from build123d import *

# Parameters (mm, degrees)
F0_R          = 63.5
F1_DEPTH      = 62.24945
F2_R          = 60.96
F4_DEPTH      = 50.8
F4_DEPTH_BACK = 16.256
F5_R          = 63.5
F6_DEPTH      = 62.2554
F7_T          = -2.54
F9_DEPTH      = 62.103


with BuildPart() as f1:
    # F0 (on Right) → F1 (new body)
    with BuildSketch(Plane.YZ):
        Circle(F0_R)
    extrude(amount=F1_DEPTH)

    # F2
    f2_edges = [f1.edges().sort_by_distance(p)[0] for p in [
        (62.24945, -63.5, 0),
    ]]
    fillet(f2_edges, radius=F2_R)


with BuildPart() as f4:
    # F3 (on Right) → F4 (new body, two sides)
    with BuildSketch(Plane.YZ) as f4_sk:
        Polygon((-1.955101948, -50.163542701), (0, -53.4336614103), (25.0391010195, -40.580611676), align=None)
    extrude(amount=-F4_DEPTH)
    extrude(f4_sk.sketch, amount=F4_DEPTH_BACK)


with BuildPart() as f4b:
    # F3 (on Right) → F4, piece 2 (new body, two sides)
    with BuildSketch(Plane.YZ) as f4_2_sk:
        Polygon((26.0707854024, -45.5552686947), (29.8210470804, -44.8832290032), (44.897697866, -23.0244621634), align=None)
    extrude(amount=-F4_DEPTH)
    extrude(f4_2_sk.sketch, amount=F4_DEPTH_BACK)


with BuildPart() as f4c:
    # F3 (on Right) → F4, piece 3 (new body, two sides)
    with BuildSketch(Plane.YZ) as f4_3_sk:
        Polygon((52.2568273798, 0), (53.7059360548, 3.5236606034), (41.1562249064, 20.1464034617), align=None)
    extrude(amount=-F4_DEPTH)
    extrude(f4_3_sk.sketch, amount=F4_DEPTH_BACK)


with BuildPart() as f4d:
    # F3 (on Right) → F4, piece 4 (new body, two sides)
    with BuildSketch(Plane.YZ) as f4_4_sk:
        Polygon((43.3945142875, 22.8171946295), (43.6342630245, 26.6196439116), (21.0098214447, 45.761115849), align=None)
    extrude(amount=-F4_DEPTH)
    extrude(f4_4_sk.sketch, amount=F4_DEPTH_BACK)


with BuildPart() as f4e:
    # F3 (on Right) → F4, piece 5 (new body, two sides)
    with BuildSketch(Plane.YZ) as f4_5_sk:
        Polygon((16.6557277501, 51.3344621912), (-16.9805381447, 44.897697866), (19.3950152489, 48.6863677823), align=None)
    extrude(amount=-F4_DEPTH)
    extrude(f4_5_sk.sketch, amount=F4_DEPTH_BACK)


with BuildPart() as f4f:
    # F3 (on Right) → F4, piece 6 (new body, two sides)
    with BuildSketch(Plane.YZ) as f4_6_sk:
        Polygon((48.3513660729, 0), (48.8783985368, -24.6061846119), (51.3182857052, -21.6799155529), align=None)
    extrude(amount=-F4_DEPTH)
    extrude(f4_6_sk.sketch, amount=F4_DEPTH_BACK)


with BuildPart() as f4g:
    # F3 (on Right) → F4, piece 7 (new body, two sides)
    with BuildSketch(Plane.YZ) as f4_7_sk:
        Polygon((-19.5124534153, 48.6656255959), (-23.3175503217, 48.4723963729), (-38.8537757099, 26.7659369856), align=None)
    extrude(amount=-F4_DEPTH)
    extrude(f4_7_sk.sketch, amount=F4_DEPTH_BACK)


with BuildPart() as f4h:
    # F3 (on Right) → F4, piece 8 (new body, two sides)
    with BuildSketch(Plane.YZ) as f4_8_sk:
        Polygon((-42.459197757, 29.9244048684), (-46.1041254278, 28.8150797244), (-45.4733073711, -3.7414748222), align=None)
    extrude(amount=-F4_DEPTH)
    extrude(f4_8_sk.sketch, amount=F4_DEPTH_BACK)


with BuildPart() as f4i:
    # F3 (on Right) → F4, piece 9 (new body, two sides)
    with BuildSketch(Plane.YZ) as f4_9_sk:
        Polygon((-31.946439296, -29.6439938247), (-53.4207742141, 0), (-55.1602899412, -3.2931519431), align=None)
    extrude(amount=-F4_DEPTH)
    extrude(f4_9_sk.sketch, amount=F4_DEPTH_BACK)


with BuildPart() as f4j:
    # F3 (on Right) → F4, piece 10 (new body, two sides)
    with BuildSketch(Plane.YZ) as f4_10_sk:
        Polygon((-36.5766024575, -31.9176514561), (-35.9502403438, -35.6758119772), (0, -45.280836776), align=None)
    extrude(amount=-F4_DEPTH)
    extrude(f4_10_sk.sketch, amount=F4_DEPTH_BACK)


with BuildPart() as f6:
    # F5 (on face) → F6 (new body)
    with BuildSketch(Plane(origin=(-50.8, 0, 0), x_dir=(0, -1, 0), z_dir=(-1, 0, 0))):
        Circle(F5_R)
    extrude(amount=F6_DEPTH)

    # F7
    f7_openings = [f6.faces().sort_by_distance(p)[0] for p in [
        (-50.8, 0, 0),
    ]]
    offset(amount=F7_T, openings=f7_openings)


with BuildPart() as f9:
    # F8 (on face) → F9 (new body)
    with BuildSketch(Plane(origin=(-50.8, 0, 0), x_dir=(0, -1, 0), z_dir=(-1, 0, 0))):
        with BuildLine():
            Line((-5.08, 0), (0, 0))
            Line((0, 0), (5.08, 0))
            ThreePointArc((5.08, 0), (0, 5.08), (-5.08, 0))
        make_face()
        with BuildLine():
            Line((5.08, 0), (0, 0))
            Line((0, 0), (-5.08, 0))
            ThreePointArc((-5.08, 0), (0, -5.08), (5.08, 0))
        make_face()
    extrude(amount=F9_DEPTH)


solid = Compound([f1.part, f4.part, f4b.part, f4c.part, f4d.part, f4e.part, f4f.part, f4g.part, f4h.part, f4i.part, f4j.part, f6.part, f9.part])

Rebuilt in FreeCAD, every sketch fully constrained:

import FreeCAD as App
import Part
import Sketcher
Q = App.Units.Quantity


def edges_at(feature, points):
    """Names of the edges that pass closest to the given points."""
    edges = feature.Shape.Edges
    near = lambda p: min(range(len(edges)), key=lambda i: edges[i].distToShape(Part.Vertex(*p))[0])
    return sorted({f"Edge{near(p) + 1}" for p in points})


def faces_at(feature, points):
    """Names of the faces that lie closest to the given points."""
    faces = feature.Shape.Faces
    near = lambda p: min(range(len(faces)), key=lambda i: faces[i].distToShape(Part.Vertex(*p))[0])
    return sorted({f"Face{near(p) + 1}" for p in points})


def add_polygon(sketch, points):
    """Adds a closed chain of lines whose ends are joined by coincident constraints."""
    first, n = sketch.GeometryCount, len(points)
    for a, b in zip(points, points[1:] + points[:1]):
        sketch.addGeometry(Part.LineSegment(App.Vector(*a, 0), App.Vector(*b, 0)), False)
    for i in range(n):
        sketch.addConstraint(Sketcher.Constraint("Coincident", first + i, 2, first + (i + 1) % n, 1))

doc = App.newDocument("Part")
params = doc.addObject("Spreadsheet::Sheet", "Params")
for row, (alias, value) in enumerate([
    ("sketch1_diameter", "5 in"),
    ("pad1_length", "62.24945 mm"),
    ("fillet_radius", "2.4 in"),
    ("sketch2_length", "0.15 in"),
    ("pad2_length", "2 in"),
    ("pad2_length2", "0.64 in"),
    ("sketch3_length", "0.15 in"),
    ("pad3_length", "2 in"),
    ("pad3_length2", "0.64 in"),
    ("sketch4_length", "0.15 in"),
    ("pad4_length", "2 in"),
    ("pad4_length2", "0.64 in"),
    ("sketch5_length", "0.15 in"),
    ("pad5_length", "2 in"),
    ("pad5_length2", "0.64 in"),
    ("sketch6_length", "0.15 in"),
    ("pad6_length", "2 in"),
    ("pad6_length2", "0.64 in"),
    ("sketch7_length", "0.15 in"),
    ("pad7_length", "2 in"),
    ("pad7_length2", "0.64 in"),
    ("sketch8_length", "0.15 in"),
    ("pad8_length", "2 in"),
    ("pad8_length2", "0.64 in"),
    ("sketch9_length", "0.15 in"),
    ("pad9_length", "2 in"),
    ("pad9_length2", "0.64 in"),
    ("pad10_length", "2 in"),
    ("pad10_length2", "0.64 in"),
    ("sketch11_length", "0.15 in"),
    ("pad11_length", "2 in"),
    ("pad11_length2", "0.64 in"),
    ("sketch12_diameter", "5 in"),
    ("pad12_length", "2.451 in"),
    ("thickness_wall", "0.1 in"),
    ("sketch13_diameter", "0.4 in"),
    ("pad13_length", "2.445 in"),
], start=1):
    params.set(f"A{row}", alias)
    params.set(f"B{row}", "=" + value)
    params.setAlias(f"B{row}", alias)

body = doc.addObject("PartDesign::Body", "Body")

# Sketch on YZ plane
sketch1 = body.newObject("Sketcher::SketchObject", "Sketch")
sketch1.AttachmentSupport = (doc.getObject("YZ_Plane"), [""])
sketch1.MapMode = "FlatFace"
sketch1.addGeometry(Part.Circle(App.Vector(0, 0, 0), App.Vector(0, 0, 1), 63.5), False)
sketch1.addConstraint([
    Sketcher.Constraint("Coincident", 0, 3, -1, 1),
    Sketcher.Constraint("Diameter", 0, Q("5 in")),
])
sketch1.setExpression("Constraints[1]", "Params.sketch1_diameter")
pad1 = body.newObject("PartDesign::Pad", "Pad")
pad1.Profile = sketch1
pad1.setExpression("Length", "Params.pad1_length")
doc.recompute()

fillet = body.newObject("PartDesign::Fillet", "Fillet")
fillet.Base = (pad1, edges_at(pad1, [(62.249, -63.5, 0)]))
fillet.setExpression("Radius", "Params.fillet_radius")
body2 = doc.addObject("PartDesign::Body", "Body001")

# Sketch on YZ plane
sketch2 = body2.newObject("Sketcher::SketchObject", "Sketch001")
sketch2.AttachmentSupport = (doc.getObject("YZ_Plane001"), [""])
sketch2.MapMode = "FlatFace"
add_polygon(sketch2, [(-1.955102, -50.163543), (0, -53.433661), (25.039101, -40.580612)])  # lines 0-2
sketch2.addConstraint([
    Sketcher.Constraint("PointOnObject", 0, 2, -2),
    Sketcher.Constraint("Distance", 0, Q("0.15 in")),
    Sketcher.Constraint("DistanceX", -1, 1, 1, 2, Q("25.039101 mm")),
    Sketcher.Constraint("DistanceX", 2, 2, -1, 1, Q("1.955102 mm")),
    Sketcher.Constraint("DistanceY", 0, 2, -1, 1, Q("53.433661 mm")),
    Sketcher.Constraint("DistanceY", 1, 2, -1, 1, Q("40.580612 mm")),
])
sketch2.setExpression("Constraints[4]", "Params.sketch2_length")
pad2 = body2.newObject("PartDesign::Pad", "Pad001")
pad2.Profile = sketch2
pad2.Type = "TwoLengths"
pad2.setExpression("Length", "Params.pad2_length")
pad2.setExpression("Length2", "Params.pad2_length2")
pad2.Reversed = True
body3 = doc.addObject("PartDesign::Body", "Body002")

# Sketch on YZ plane
sketch3 = body3.newObject("Sketcher::SketchObject", "Sketch002")
sketch3.AttachmentSupport = (doc.getObject("YZ_Plane002"), [""])
sketch3.MapMode = "FlatFace"
add_polygon(sketch3, [(26.070785, -45.555269), (29.821047, -44.883229), (44.897698, -23.024462)])  # lines 0-2
sketch3.addConstraint([
    Sketcher.Constraint("Distance", 0, Q("0.15 in")),
    Sketcher.Constraint("DistanceY", 0, 2, -1, 1, Q("44.883229 mm")),
    Sketcher.Constraint("DistanceY", 2, 2, -1, 1, Q("45.555269 mm")),
    Sketcher.Constraint("DistanceX", 0, 2, 1, 2, Q("15.076651 mm")),
    Sketcher.Constraint("Distance", 1, Q("26.553928 mm")),
    Sketcher.Constraint("DistanceX", -1, 1, 0, 2, Q("29.821047 mm")),
])
sketch3.setExpression("Constraints[3]", "Params.sketch3_length")
pad3 = body3.newObject("PartDesign::Pad", "Pad002")
pad3.Profile = sketch3
pad3.Type = "TwoLengths"
pad3.setExpression("Length", "Params.pad3_length")
pad3.setExpression("Length2", "Params.pad3_length2")
pad3.Reversed = True
body4 = doc.addObject("PartDesign::Body", "Body003")

# Sketch on YZ plane
sketch4 = body4.newObject("Sketcher::SketchObject", "Sketch003")
sketch4.AttachmentSupport = (doc.getObject("YZ_Plane003"), [""])
sketch4.MapMode = "FlatFace"
add_polygon(sketch4, [(52.256827, 0), (53.705936, 3.523661), (41.156225, 20.146403)])  # lines 0-2
sketch4.addConstraint([
    Sketcher.Constraint("PointOnObject", 2, 2, -1),
    Sketcher.Constraint("Distance", 0, Q("0.15 in")),
    Sketcher.Constraint("DistanceY", -1, 1, 0, 2, Q("3.523661 mm")),
    Sketcher.Constraint("DistanceX", 1, 2, 0, 2, Q("12.549711 mm")),
    Sketcher.Constraint("Distance", 1, Q("20.828126 mm")),
    Sketcher.Constraint("DistanceX", -1, 1, 0, 2, Q("53.705936 mm")),
])
sketch4.setExpression("Constraints[4]", "Params.sketch4_length")
pad4 = body4.newObject("PartDesign::Pad", "Pad003")
pad4.Profile = sketch4
pad4.Type = "TwoLengths"
pad4.setExpression("Length", "Params.pad4_length")
pad4.setExpression("Length2", "Params.pad4_length2")
pad4.Reversed = True
body5 = doc.addObject("PartDesign::Body", "Body004")

# Sketch on YZ plane
sketch5 = body5.newObject("Sketcher::SketchObject", "Sketch004")
sketch5.AttachmentSupport = (doc.getObject("YZ_Plane004"), [""])
sketch5.MapMode = "FlatFace"
add_polygon(sketch5, [(43.394514, 22.817195), (43.634263, 26.619644), (21.009821, 45.761116)])  # lines 0-2
sketch5.addConstraint([
    Sketcher.Constraint("Distance", 0, Q("0.15 in")),
    Sketcher.Constraint("Distance", 2, Q("32.05461 mm")),
    Sketcher.Constraint("DistanceX", -1, 1, 1, 2, Q("21.009821 mm")),
    Sketcher.Constraint("DistanceX", 1, 2, 0, 2, Q("22.624442 mm")),
    Sketcher.Constraint("DistanceY", 0, 2, 1, 2, Q("19.141472 mm")),
    Sketcher.Constraint("DistanceY", -1, 1, 0, 2, Q("26.619644 mm")),
])
sketch5.setExpression("Constraints[3]", "Params.sketch5_length")
pad5 = body5.newObject("PartDesign::Pad", "Pad004")
pad5.Profile = sketch5
pad5.Type = "TwoLengths"
pad5.setExpression("Length", "Params.pad5_length")
pad5.setExpression("Length2", "Params.pad5_length2")
pad5.Reversed = True
body6 = doc.addObject("PartDesign::Body", "Body005")

# Sketch on YZ plane
sketch6 = body6.newObject("Sketcher::SketchObject", "Sketch005")
sketch6.AttachmentSupport = (doc.getObject("YZ_Plane005"), [""])
sketch6.MapMode = "FlatFace"
add_polygon(sketch6, [(16.655728, 51.334462), (-16.980538, 44.897698), (19.395015, 48.686368)])  # lines 0-2
sketch6.addConstraint([
    Sketcher.Constraint("Distance", 2, Q("0.15 in")),
    Sketcher.Constraint("Distance", 0, Q("34.24661 mm")),
    Sketcher.Constraint("DistanceX", 0, 2, -1, 1, Q("16.980538 mm")),
    Sketcher.Constraint("DistanceY", 0, 2, 1, 2, Q("3.78867 mm")),
    Sketcher.Constraint("Distance", 1, Q("36.572324 mm")),
    Sketcher.Constraint("DistanceY", -1, 1, 0, 2, Q("44.897698 mm")),
])
sketch6.setExpression("Constraints[3]", "Params.sketch6_length")
pad6 = body6.newObject("PartDesign::Pad", "Pad005")
pad6.Profile = sketch6
pad6.Type = "TwoLengths"
pad6.setExpression("Length", "Params.pad6_length")
pad6.setExpression("Length2", "Params.pad6_length2")
pad6.Reversed = True
body7 = doc.addObject("PartDesign::Body", "Body006")

# Sketch on YZ plane
sketch7 = body7.newObject("Sketcher::SketchObject", "Sketch006")
sketch7.AttachmentSupport = (doc.getObject("YZ_Plane006"), [""])
sketch7.MapMode = "FlatFace"
add_polygon(sketch7, [(48.351366, 0), (48.878399, -24.606185), (51.318286, -21.679916)])  # lines 0-2
sketch7.addConstraint([
    Sketcher.Constraint("PointOnObject", 2, 2, -1),
    Sketcher.Constraint("Distance", 1, Q("0.15 in")),
    Sketcher.Constraint("DistanceX", -1, 1, 0, 2, Q("48.878399 mm")),
    Sketcher.Constraint("Distance", 0, Q("24.611828 mm")),
    Sketcher.Constraint("DistanceY", 0, 2, 1, 2, Q("2.926269 mm")),
    Sketcher.Constraint("DistanceX", 2, 2, 1, 2, Q("2.96692 mm")),
])
sketch7.setExpression("Constraints[4]", "Params.sketch7_length")
pad7 = body7.newObject("PartDesign::Pad", "Pad006")
pad7.Profile = sketch7
pad7.Type = "TwoLengths"
pad7.setExpression("Length", "Params.pad7_length")
pad7.setExpression("Length2", "Params.pad7_length2")
pad7.Reversed = True
body8 = doc.addObject("PartDesign::Body", "Body007")

# Sketch on YZ plane
sketch8 = body8.newObject("Sketcher::SketchObject", "Sketch007")
sketch8.AttachmentSupport = (doc.getObject("YZ_Plane007"), [""])
sketch8.MapMode = "FlatFace"
add_polygon(sketch8, [(-19.512453, 48.665626), (-23.31755, 48.472396), (-38.853776, 26.765937)])  # lines 0-2
sketch8.addConstraint([
    Sketcher.Constraint("Distance", 0, Q("0.15 in")),
    Sketcher.Constraint("DistanceX", 0, 2, -1, 1, Q("23.31755 mm")),
    Sketcher.Constraint("DistanceY", 1, 2, 0, 2, Q("21.706459 mm")),
    Sketcher.Constraint("DistanceY", 0, 2, 2, 2, Q("0.193229 mm")),
    Sketcher.Constraint("Distance", 1, Q("26.693533 mm")),
    Sketcher.Constraint("DistanceY", -1, 1, 0, 2, Q("48.472396 mm")),
])
sketch8.setExpression("Constraints[3]", "Params.sketch8_length")
pad8 = body8.newObject("PartDesign::Pad", "Pad007")
pad8.Profile = sketch8
pad8.Type = "TwoLengths"
pad8.setExpression("Length", "Params.pad8_length")
pad8.setExpression("Length2", "Params.pad8_length2")
pad8.Reversed = True
body9 = doc.addObject("PartDesign::Body", "Body008")

# Sketch on YZ plane
sketch9 = body9.newObject("Sketcher::SketchObject", "Sketch008")
sketch9.AttachmentSupport = (doc.getObject("YZ_Plane008"), [""])
sketch9.MapMode = "FlatFace"
add_polygon(sketch9, [(-42.459198, 29.924405), (-46.104125, 28.81508), (-45.473307, -3.741475)])  # lines 0-2
sketch9.addConstraint([
    Sketcher.Constraint("Distance", 0, Q("0.15 in")),
    Sketcher.Constraint("DistanceY", -1, 1, 0, 2, Q("28.81508 mm")),
    Sketcher.Constraint("DistanceX", 0, 2, 1, 2, Q("0.630818 mm")),
    Sketcher.Constraint("DistanceX", 1, 2, 2, 2, Q("3.01411 mm")),
    Sketcher.Constraint("DistanceY", 1, 2, 2, 2, Q("33.66588 mm")),
    Sketcher.Constraint("DistanceX", 0, 2, -1, 1, Q("46.104125 mm")),
])
sketch9.setExpression("Constraints[3]", "Params.sketch9_length")
pad9 = body9.newObject("PartDesign::Pad", "Pad008")
pad9.Profile = sketch9
pad9.Type = "TwoLengths"
pad9.setExpression("Length", "Params.pad9_length")
pad9.setExpression("Length2", "Params.pad9_length2")
pad9.Reversed = True
body10 = doc.addObject("PartDesign::Body", "Body009")

# Sketch on YZ plane
sketch10 = body10.newObject("Sketcher::SketchObject", "Sketch009")
sketch10.AttachmentSupport = (doc.getObject("YZ_Plane009"), [""])
sketch10.MapMode = "FlatFace"
add_polygon(sketch10, [(-31.946439, -29.643994), (-53.420774, 0), (-55.16029, -3.293152)])  # lines 0-2
sketch10.addConstraint([
    Sketcher.Constraint("PointOnObject", 0, 2, -1),
    Sketcher.Constraint("DistanceX", 1, 2, -1, 1, Q("55.16029 mm")),
    Sketcher.Constraint("DistanceY", 1, 2, -1, 1, Q("3.293152 mm")),
    Sketcher.Constraint("DistanceX", 2, 2, -1, 1, Q("31.946439 mm")),
    Sketcher.Constraint("DistanceY", 2, 2, 1, 2, Q("26.350842 mm")),
    Sketcher.Constraint("Distance", 0, Q("36.604828 mm")),
])
pad10 = body10.newObject("PartDesign::Pad", "Pad009")
pad10.Profile = sketch10
pad10.Type = "TwoLengths"
pad10.setExpression("Length", "Params.pad10_length")
pad10.setExpression("Length2", "Params.pad10_length2")
pad10.Reversed = True
body11 = doc.addObject("PartDesign::Body", "Body010")

# Sketch on YZ plane
sketch11 = body11.newObject("Sketcher::SketchObject", "Sketch010")
sketch11.AttachmentSupport = (doc.getObject("YZ_Plane010"), [""])
sketch11.MapMode = "FlatFace"
add_polygon(sketch11, [(-36.576602, -31.917651), (-35.95024, -35.675812), (0, -45.280837)])  # lines 0-2
sketch11.addConstraint([
    Sketcher.Constraint("PointOnObject", 1, 2, -2),
    Sketcher.Constraint("Distance", 0, Q("0.15 in")),
    Sketcher.Constraint("Distance", 1, Q("37.211239 mm")),
    Sketcher.Constraint("Distance", 2, Q("38.941271 mm")),
    Sketcher.Constraint("DistanceX", 0, 2, -1, 1, Q("35.95024 mm")),
    Sketcher.Constraint("DistanceY", 0, 2, -1, 1, Q("35.675812 mm")),
])
sketch11.setExpression("Constraints[4]", "Params.sketch11_length")
pad11 = body11.newObject("PartDesign::Pad", "Pad010")
pad11.Profile = sketch11
pad11.Type = "TwoLengths"
pad11.setExpression("Length", "Params.pad11_length")
pad11.setExpression("Length2", "Params.pad11_length2")
pad11.Reversed = True
body12 = doc.addObject("PartDesign::Body", "Body011")

# Sketch on YZ plane
sketch12 = body12.newObject("Sketcher::SketchObject", "Sketch011")
sketch12.AttachmentSupport = (doc.getObject("YZ_Plane011"), [""])
sketch12.MapMode = "FlatFace"
sketch12.AttachmentOffset = App.Placement(App.Vector(0, 0, -2 * 25.4), App.Rotation())
sketch12.addGeometry(Part.Circle(App.Vector(0, 0, 0), App.Vector(0, 0, 1), 63.5), False)
sketch12.addConstraint([
    Sketcher.Constraint("Coincident", 0, 3, -1, 1),
    Sketcher.Constraint("Diameter", 0, Q("5 in")),
])
sketch12.setExpression("Constraints[1]", "Params.sketch12_diameter")
pad12 = body12.newObject("PartDesign::Pad", "Pad011")
pad12.Profile = sketch12
pad12.setExpression("Length", "Params.pad12_length")
pad12.Reversed = True
doc.recompute()

thickness = body12.newObject("PartDesign::Thickness", "Thickness")
thickness.Base = (pad12, faces_at(pad12, [(-50.8, 0, 0)]))
thickness.setExpression("Value", "Params.thickness_wall")
thickness.Reversed = True
thickness.Join = "Arc"
body13 = doc.addObject("PartDesign::Body", "Body012")

# Sketch on YZ plane
sketch13 = body13.newObject("Sketcher::SketchObject", "Sketch012")
sketch13.AttachmentSupport = (doc.getObject("YZ_Plane012"), [""])
sketch13.MapMode = "FlatFace"
sketch13.AttachmentOffset = App.Placement(App.Vector(0, 0, -2 * 25.4), App.Rotation())
sketch13.addGeometry(Part.Circle(App.Vector(0, 0, 0), App.Vector(0, 0, 1), 5.08), False)
sketch13.addConstraint([
    Sketcher.Constraint("Coincident", 0, 3, -1, 1),
    Sketcher.Constraint("Diameter", 0, Q("0.4 in")),
])
sketch13.setExpression("Constraints[1]", "Params.sketch13_diameter")
pad13 = body13.newObject("PartDesign::Pad", "Pad012")
pad13.Profile = sketch13
pad13.setExpression("Length", "Params.pad13_length")
pad13.Reversed = True

doc.recompute()
